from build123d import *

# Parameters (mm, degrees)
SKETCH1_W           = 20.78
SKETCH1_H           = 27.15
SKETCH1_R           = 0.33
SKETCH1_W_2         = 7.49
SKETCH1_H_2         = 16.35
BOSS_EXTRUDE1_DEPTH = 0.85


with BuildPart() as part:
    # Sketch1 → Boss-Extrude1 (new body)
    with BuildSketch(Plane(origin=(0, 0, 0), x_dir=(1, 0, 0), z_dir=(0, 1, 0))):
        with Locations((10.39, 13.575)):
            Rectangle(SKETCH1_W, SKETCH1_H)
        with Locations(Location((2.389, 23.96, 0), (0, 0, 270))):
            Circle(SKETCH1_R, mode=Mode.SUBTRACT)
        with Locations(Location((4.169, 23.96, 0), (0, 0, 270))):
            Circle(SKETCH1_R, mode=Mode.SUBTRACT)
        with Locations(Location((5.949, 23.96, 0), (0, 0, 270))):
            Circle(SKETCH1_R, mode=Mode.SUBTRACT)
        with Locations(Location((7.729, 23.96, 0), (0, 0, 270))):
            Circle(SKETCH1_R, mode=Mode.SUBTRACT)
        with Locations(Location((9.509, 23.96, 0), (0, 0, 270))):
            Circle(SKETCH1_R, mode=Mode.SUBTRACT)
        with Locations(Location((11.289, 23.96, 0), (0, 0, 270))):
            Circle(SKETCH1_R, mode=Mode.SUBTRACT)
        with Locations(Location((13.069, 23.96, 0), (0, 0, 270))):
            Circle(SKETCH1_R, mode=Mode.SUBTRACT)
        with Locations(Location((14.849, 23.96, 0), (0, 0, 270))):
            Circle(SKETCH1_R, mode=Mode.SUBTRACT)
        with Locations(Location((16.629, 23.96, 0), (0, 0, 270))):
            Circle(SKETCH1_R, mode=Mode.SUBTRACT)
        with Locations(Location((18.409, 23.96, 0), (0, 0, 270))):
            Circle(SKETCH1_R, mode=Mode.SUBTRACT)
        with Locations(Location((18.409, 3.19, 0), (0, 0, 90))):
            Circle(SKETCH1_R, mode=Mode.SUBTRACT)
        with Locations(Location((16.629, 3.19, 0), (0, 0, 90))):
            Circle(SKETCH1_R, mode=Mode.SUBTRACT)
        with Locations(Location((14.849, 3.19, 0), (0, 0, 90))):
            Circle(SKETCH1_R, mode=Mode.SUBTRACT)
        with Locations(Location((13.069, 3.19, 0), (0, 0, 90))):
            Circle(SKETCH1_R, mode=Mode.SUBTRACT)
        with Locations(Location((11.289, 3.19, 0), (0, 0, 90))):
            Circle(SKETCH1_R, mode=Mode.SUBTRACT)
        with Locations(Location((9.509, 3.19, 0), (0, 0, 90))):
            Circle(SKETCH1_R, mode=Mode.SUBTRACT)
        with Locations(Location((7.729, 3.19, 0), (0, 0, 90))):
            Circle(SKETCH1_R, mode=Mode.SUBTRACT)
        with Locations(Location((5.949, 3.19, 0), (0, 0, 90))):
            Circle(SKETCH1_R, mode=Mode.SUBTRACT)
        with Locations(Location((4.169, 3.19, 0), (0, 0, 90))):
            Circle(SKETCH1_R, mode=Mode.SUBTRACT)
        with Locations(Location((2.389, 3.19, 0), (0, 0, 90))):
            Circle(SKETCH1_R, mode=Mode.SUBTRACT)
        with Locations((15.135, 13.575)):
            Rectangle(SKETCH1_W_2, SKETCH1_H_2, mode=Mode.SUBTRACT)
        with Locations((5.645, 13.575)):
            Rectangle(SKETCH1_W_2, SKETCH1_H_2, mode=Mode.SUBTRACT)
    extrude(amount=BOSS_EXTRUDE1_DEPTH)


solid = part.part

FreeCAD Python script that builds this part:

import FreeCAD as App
import Part
import Sketcher

doc = App.newDocument("Part")
body = doc.addObject("PartDesign::Body", "Body")

# Sketch on XZ plane
sketch1 = body.newObject("Sketcher::SketchObject", "Sketch")
sketch1.AttachmentSupport = (doc.getObject("XZ_Plane"), [""])
sketch1.MapMode = "FlatFace"
sketch1.addGeometry([
    Part.LineSegment(App.Vector(0, -27.15, 0), App.Vector(0, 0, 0)),  # 0
    Part.LineSegment(App.Vector(0, 0, 0), App.Vector(20.78, 0, 0)),  # 1
    Part.LineSegment(App.Vector(20.78, 0, 0), App.Vector(20.78, -27.15, 0)),  # 2
    Part.LineSegment(App.Vector(20.78, -27.15, 0), App.Vector(0, -27.15, 0)),  # 3
    Part.Circle(App.Vector(2.39, -3.19, 0), App.Vector(0, 0, 1), 0.33),  # 4
    Part.Circle(App.Vector(4.17, -3.19, 0), App.Vector(0, 0, 1), 0.33),  # 5
    Part.Circle(App.Vector(5.95, -3.19, 0), App.Vector(0, 0, 1), 0.33),  # 6
    Part.Circle(App.Vector(7.73, -3.19, 0), App.Vector(0, 0, 1), 0.33),  # 7
    Part.Circle(App.Vector(9.51, -3.19, 0), App.Vector(0, 0, 1), 0.33),  # 8
    Part.Circle(App.Vector(11.29, -3.19, 0), App.Vector(0, 0, 1), 0.33),  # 9
    Part.Circle(App.Vector(13.07, -3.19, 0), App.Vector(0, 0, 1), 0.33),  # 10
    Part.Circle(App.Vector(14.85, -3.19, 0), App.Vector(0, 0, 1), 0.33),  # 11
    Part.Circle(App.Vector(16.63, -3.19, 0), App.Vector(0, 0, 1), 0.33),  # 12
    Part.Circle(App.Vector(18.41, -3.19, 0), App.Vector(0, 0, 1), 0.33),  # 13
    Part.LineSegment(App.Vector(9.39, -5.4, 0), App.Vector(1.9, -5.4, 0)),  # 14
    Part.LineSegment(App.Vector(1.9, -5.4, 0), App.Vector(1.9, -21.75, 0)),  # 15
    Part.LineSegment(App.Vector(1.9, -21.75, 0), App.Vector(9.39, -21.75, 0)),  # 16
    Part.LineSegment(App.Vector(9.39, -21.75, 0), App.Vector(9.39, -5.4, 0)),  # 17
    Part.Circle(App.Vector(2.39, -23.96, 0), App.Vector(0, 0, 1), 0.33),  # 18
    Part.Circle(App.Vector(4.17, -23.96, 0), App.Vector(0, 0, 1), 0.33),  # 19
    Part.Circle(App.Vector(5.95, -23.96, 0), App.Vector(0, 0, 1), 0.33),  # 20
    Part.Circle(App.Vector(7.73, -23.96, 0), App.Vector(0, 0, 1), 0.33),  # 21
    Part.Circle(App.Vector(9.51, -23.96, 0), App.Vector(0, 0, 1), 0.33),  # 22
    Part.LineSegment(App.Vector(18.88, -5.4, 0), App.Vector(11.39, -5.4, 0)),  # 23
    Part.LineSegment(App.Vector(11.39, -5.4, 0), App.Vector(11.39, -21.75, 0)),  # 24
    Part.LineSegment(App.Vector(11.39, -21.75, 0), App.Vector(18.88, -21.75, 0)),  # 25
    Part.LineSegment(App.Vector(18.88, -21.75, 0), App.Vector(18.88, -5.4, 0)),  # 26
    Part.Circle(App.Vector(11.29, -23.96, 0), App.Vector(0, 0, 1), 0.33),  # 27
    Part.Circle(App.Vector(13.07, -23.96, 0), App.Vector(0, 0, 1), 0.33),  # 28
    Part.Circle(App.Vector(14.85, -23.96, 0), App.Vector(0, 0, 1), 0.33),  # 29
    Part.Circle(App.Vector(16.63, -23.96, 0), App.Vector(0, 0, 1), 0.33),  # 30
    Part.Circle(App.Vector(18.41, -23.96, 0), App.Vector(0, 0, 1), 0.33),  # 31
], False)
sketch1.addConstraint([
    Sketcher.Constraint("Coincident", 0, 2, 1, 1),
    Sketcher.Constraint("Coincident", 1, 2, 2, 1),
    Sketcher.Constraint("Coincident", 2, 2, 3, 1),
    Sketcher.Constraint("Coincident", 3, 2, 0, 1),
    Sketcher.Constraint("Coincident", 14, 2, 15, 1),
    Sketcher.Constraint("Coincident", 15, 2, 16, 1),
    Sketcher.Constraint("Coincident", 16, 2, 17, 1),
    Sketcher.Constraint("Coincident", 17, 2, 14, 1),
    Sketcher.Constraint("Coincident", 23, 2, 24, 1),
    Sketcher.Constraint("Coincident", 24, 2, 25, 1),
    Sketcher.Constraint("Coincident", 25, 2, 26, 1),
    Sketcher.Constraint("Coincident", 26, 2, 23, 1),
    Sketcher.Constraint("Vertical", 0),
    Sketcher.Constraint("Horizontal", 1),
    Sketcher.Constraint("Vertical", 2),
    Sketcher.Constraint("Horizontal", 3),
    Sketcher.Constraint("Horizontal", 14),
    Sketcher.Constraint("Vertical", 15),
    Sketcher.Constraint("Horizontal", 16),
    Sketcher.Constraint("Vertical", 17),
    Sketcher.Constraint("Horizontal", 23),
    Sketcher.Constraint("Vertical", 24),
    Sketcher.Constraint("Horizontal", 25),
    Sketcher.Constraint("Vertical", 26),
    Sketcher.Constraint("Coincident", 0, 2, -1, 1),
    Sketcher.Constraint("Equal", 4, 5),
    Sketcher.Constraint("Equal", 5, 6),
    Sketcher.Constraint("Equal", 6, 7),
    Sketcher.Constraint("Equal", 7, 8),
    Sketcher.Constraint("Equal", 8, 9),
    Sketcher.Constraint("Equal", 9, 10),
    Sketcher.Constraint("Equal", 10, 11),
    Sketcher.Constraint("Equal", 11, 12),
    Sketcher.Constraint("Equal", 12, 13),
    Sketcher.Constraint("Equal", 13, 18),
    Sketcher.Constraint("Equal", 18, 19),
    Sketcher.Constraint("Equal", 19, 20),
    Sketcher.Constraint("Equal", 20, 21),
    Sketcher.Constraint("Equal", 21, 22),
    Sketcher.Constraint("Equal", 22, 27),
    Sketcher.Constraint("Equal", 27, 28),
    Sketcher.Constraint("Equal", 28, 29),
    Sketcher.Constraint("Equal", 29, 30),
    Sketcher.Constraint("Equal", 30, 31),
    Sketcher.Constraint("Horizontal", 4, 3, 5, 3),
    Sketcher.Constraint("Horizontal", 5, 3, 6, 3),
    Sketcher.Constraint("Horizontal", 6, 3, 7, 3),
    Sketcher.Constraint("Horizontal", 7, 3, 8, 3),
    Sketcher.Constraint("Horizontal", 8, 3, 9, 3),
    Sketcher.Constraint("Horizontal", 9, 3, 10, 3),
    Sketcher.Constraint("Horizontal", 10, 3, 11, 3),
    Sketcher.Constraint("Horizontal", 11, 3, 12, 3),
    Sketcher.Constraint("Horizontal", 12, 3, 13, 3),
    Sketcher.Constraint("Horizontal", 18, 3, 19, 3),
    Sketcher.Constraint("Horizontal", 19, 3, 20, 3),
    Sketcher.Constraint("Horizontal", 20, 3, 21, 3),
    Sketcher.Constraint("Horizontal", 21, 3, 22, 3),
    Sketcher.Constraint("Horizontal", 22, 3, 27, 3),
    Sketcher.Constraint("Horizontal", 27, 3, 28, 3),
    Sketcher.Constraint("Horizontal", 28, 3, 29, 3),
    Sketcher.Constraint("Horizontal", 29, 3, 30, 3),
    Sketcher.Constraint("Horizontal", 30, 3, 31, 3),
    Sketcher.Constraint("Horizontal", 17, 2, 23, 2),
    Sketcher.Constraint("Horizontal", 16, 2, 24, 2),
    Sketcher.Constraint("Vertical", 4, 3, 18, 3),
    Sketcher.Constraint("Vertical", 5, 3, 19, 3),
    Sketcher.Constraint("Vertical", 6, 3, 20, 3),
    Sketcher.Constraint("Vertical", 7, 3, 21, 3),
    Sketcher.Constraint("Vertical", 8, 3, 22, 3),
    Sketcher.Constraint("Vertical", 9, 3, 27, 3),
    Sketcher.Constraint("Vertical", 10, 3, 28, 3),
    Sketcher.Constraint("Vertical", 11, 3, 29, 3),
    Sketcher.Constraint("Vertical", 12, 3, 30, 3),
    Sketcher.Constraint("Vertical", 13, 3, 31, 3),
    Sketcher.Constraint("Equal", 16, 23),
    Sketcher.Constraint("Diameter", 4, 0.66),
    Sketcher.Constraint("DistanceX", 17, 2, 23, 2, 2.0),
    Sketcher.Constraint("DistanceX", 1, 1, 1, 2, 20.78),
    Sketcher.Constraint("DistanceX", 14, 2, 14, 1, 7.49),
    Sketcher.Constraint("DistanceY", 0, 1, 0, 2, 27.15),
    Sketcher.Constraint("DistanceY", 15, 2, 15, 1, 16.35),
    Sketcher.Constraint("DistanceX", -1, 1, 14, 2, 1.9),
    Sketcher.Constraint("DistanceY", 14, 2, -1, 1, 5.4),
    Sketcher.Constraint("DistanceX", 4, 3, 9, 3, 8.9),
    Sketcher.Constraint("DistanceX", 5, 3, 10, 3, 8.9),
    Sketcher.Constraint("DistanceX", 6, 3, 11, 3, 8.9),
    Sketcher.Constraint("DistanceX", 7, 3, 12, 3, 8.9),
    Sketcher.Constraint("DistanceX", 8, 3, 13, 3, 8.9),
    Sketcher.Constraint("DistanceY", 4, 3, -1, 1, 3.19),
    Sketcher.Constraint("DistanceY", 18, 3, -1, 1, 23.96),
    Sketcher.Constraint("DistanceX", 4, 3, 5, 3, 1.78),
    Sketcher.Constraint("DistanceX", 5, 3, 6, 3, 1.78),
    Sketcher.Constraint("DistanceX", 6, 3, 7, 3, 1.78),
    Sketcher.Constraint("DistanceX", 7, 3, 8, 3, 1.78),
    Sketcher.Constraint("DistanceX", -1, 1, 4, 3, 2.389),
])
pad1 = body.newObject("PartDesign::Pad", "Pad")
pad1.Profile = sketch1
pad1.Length = 0.85
pad1.Reversed = True

doc.recompute()
